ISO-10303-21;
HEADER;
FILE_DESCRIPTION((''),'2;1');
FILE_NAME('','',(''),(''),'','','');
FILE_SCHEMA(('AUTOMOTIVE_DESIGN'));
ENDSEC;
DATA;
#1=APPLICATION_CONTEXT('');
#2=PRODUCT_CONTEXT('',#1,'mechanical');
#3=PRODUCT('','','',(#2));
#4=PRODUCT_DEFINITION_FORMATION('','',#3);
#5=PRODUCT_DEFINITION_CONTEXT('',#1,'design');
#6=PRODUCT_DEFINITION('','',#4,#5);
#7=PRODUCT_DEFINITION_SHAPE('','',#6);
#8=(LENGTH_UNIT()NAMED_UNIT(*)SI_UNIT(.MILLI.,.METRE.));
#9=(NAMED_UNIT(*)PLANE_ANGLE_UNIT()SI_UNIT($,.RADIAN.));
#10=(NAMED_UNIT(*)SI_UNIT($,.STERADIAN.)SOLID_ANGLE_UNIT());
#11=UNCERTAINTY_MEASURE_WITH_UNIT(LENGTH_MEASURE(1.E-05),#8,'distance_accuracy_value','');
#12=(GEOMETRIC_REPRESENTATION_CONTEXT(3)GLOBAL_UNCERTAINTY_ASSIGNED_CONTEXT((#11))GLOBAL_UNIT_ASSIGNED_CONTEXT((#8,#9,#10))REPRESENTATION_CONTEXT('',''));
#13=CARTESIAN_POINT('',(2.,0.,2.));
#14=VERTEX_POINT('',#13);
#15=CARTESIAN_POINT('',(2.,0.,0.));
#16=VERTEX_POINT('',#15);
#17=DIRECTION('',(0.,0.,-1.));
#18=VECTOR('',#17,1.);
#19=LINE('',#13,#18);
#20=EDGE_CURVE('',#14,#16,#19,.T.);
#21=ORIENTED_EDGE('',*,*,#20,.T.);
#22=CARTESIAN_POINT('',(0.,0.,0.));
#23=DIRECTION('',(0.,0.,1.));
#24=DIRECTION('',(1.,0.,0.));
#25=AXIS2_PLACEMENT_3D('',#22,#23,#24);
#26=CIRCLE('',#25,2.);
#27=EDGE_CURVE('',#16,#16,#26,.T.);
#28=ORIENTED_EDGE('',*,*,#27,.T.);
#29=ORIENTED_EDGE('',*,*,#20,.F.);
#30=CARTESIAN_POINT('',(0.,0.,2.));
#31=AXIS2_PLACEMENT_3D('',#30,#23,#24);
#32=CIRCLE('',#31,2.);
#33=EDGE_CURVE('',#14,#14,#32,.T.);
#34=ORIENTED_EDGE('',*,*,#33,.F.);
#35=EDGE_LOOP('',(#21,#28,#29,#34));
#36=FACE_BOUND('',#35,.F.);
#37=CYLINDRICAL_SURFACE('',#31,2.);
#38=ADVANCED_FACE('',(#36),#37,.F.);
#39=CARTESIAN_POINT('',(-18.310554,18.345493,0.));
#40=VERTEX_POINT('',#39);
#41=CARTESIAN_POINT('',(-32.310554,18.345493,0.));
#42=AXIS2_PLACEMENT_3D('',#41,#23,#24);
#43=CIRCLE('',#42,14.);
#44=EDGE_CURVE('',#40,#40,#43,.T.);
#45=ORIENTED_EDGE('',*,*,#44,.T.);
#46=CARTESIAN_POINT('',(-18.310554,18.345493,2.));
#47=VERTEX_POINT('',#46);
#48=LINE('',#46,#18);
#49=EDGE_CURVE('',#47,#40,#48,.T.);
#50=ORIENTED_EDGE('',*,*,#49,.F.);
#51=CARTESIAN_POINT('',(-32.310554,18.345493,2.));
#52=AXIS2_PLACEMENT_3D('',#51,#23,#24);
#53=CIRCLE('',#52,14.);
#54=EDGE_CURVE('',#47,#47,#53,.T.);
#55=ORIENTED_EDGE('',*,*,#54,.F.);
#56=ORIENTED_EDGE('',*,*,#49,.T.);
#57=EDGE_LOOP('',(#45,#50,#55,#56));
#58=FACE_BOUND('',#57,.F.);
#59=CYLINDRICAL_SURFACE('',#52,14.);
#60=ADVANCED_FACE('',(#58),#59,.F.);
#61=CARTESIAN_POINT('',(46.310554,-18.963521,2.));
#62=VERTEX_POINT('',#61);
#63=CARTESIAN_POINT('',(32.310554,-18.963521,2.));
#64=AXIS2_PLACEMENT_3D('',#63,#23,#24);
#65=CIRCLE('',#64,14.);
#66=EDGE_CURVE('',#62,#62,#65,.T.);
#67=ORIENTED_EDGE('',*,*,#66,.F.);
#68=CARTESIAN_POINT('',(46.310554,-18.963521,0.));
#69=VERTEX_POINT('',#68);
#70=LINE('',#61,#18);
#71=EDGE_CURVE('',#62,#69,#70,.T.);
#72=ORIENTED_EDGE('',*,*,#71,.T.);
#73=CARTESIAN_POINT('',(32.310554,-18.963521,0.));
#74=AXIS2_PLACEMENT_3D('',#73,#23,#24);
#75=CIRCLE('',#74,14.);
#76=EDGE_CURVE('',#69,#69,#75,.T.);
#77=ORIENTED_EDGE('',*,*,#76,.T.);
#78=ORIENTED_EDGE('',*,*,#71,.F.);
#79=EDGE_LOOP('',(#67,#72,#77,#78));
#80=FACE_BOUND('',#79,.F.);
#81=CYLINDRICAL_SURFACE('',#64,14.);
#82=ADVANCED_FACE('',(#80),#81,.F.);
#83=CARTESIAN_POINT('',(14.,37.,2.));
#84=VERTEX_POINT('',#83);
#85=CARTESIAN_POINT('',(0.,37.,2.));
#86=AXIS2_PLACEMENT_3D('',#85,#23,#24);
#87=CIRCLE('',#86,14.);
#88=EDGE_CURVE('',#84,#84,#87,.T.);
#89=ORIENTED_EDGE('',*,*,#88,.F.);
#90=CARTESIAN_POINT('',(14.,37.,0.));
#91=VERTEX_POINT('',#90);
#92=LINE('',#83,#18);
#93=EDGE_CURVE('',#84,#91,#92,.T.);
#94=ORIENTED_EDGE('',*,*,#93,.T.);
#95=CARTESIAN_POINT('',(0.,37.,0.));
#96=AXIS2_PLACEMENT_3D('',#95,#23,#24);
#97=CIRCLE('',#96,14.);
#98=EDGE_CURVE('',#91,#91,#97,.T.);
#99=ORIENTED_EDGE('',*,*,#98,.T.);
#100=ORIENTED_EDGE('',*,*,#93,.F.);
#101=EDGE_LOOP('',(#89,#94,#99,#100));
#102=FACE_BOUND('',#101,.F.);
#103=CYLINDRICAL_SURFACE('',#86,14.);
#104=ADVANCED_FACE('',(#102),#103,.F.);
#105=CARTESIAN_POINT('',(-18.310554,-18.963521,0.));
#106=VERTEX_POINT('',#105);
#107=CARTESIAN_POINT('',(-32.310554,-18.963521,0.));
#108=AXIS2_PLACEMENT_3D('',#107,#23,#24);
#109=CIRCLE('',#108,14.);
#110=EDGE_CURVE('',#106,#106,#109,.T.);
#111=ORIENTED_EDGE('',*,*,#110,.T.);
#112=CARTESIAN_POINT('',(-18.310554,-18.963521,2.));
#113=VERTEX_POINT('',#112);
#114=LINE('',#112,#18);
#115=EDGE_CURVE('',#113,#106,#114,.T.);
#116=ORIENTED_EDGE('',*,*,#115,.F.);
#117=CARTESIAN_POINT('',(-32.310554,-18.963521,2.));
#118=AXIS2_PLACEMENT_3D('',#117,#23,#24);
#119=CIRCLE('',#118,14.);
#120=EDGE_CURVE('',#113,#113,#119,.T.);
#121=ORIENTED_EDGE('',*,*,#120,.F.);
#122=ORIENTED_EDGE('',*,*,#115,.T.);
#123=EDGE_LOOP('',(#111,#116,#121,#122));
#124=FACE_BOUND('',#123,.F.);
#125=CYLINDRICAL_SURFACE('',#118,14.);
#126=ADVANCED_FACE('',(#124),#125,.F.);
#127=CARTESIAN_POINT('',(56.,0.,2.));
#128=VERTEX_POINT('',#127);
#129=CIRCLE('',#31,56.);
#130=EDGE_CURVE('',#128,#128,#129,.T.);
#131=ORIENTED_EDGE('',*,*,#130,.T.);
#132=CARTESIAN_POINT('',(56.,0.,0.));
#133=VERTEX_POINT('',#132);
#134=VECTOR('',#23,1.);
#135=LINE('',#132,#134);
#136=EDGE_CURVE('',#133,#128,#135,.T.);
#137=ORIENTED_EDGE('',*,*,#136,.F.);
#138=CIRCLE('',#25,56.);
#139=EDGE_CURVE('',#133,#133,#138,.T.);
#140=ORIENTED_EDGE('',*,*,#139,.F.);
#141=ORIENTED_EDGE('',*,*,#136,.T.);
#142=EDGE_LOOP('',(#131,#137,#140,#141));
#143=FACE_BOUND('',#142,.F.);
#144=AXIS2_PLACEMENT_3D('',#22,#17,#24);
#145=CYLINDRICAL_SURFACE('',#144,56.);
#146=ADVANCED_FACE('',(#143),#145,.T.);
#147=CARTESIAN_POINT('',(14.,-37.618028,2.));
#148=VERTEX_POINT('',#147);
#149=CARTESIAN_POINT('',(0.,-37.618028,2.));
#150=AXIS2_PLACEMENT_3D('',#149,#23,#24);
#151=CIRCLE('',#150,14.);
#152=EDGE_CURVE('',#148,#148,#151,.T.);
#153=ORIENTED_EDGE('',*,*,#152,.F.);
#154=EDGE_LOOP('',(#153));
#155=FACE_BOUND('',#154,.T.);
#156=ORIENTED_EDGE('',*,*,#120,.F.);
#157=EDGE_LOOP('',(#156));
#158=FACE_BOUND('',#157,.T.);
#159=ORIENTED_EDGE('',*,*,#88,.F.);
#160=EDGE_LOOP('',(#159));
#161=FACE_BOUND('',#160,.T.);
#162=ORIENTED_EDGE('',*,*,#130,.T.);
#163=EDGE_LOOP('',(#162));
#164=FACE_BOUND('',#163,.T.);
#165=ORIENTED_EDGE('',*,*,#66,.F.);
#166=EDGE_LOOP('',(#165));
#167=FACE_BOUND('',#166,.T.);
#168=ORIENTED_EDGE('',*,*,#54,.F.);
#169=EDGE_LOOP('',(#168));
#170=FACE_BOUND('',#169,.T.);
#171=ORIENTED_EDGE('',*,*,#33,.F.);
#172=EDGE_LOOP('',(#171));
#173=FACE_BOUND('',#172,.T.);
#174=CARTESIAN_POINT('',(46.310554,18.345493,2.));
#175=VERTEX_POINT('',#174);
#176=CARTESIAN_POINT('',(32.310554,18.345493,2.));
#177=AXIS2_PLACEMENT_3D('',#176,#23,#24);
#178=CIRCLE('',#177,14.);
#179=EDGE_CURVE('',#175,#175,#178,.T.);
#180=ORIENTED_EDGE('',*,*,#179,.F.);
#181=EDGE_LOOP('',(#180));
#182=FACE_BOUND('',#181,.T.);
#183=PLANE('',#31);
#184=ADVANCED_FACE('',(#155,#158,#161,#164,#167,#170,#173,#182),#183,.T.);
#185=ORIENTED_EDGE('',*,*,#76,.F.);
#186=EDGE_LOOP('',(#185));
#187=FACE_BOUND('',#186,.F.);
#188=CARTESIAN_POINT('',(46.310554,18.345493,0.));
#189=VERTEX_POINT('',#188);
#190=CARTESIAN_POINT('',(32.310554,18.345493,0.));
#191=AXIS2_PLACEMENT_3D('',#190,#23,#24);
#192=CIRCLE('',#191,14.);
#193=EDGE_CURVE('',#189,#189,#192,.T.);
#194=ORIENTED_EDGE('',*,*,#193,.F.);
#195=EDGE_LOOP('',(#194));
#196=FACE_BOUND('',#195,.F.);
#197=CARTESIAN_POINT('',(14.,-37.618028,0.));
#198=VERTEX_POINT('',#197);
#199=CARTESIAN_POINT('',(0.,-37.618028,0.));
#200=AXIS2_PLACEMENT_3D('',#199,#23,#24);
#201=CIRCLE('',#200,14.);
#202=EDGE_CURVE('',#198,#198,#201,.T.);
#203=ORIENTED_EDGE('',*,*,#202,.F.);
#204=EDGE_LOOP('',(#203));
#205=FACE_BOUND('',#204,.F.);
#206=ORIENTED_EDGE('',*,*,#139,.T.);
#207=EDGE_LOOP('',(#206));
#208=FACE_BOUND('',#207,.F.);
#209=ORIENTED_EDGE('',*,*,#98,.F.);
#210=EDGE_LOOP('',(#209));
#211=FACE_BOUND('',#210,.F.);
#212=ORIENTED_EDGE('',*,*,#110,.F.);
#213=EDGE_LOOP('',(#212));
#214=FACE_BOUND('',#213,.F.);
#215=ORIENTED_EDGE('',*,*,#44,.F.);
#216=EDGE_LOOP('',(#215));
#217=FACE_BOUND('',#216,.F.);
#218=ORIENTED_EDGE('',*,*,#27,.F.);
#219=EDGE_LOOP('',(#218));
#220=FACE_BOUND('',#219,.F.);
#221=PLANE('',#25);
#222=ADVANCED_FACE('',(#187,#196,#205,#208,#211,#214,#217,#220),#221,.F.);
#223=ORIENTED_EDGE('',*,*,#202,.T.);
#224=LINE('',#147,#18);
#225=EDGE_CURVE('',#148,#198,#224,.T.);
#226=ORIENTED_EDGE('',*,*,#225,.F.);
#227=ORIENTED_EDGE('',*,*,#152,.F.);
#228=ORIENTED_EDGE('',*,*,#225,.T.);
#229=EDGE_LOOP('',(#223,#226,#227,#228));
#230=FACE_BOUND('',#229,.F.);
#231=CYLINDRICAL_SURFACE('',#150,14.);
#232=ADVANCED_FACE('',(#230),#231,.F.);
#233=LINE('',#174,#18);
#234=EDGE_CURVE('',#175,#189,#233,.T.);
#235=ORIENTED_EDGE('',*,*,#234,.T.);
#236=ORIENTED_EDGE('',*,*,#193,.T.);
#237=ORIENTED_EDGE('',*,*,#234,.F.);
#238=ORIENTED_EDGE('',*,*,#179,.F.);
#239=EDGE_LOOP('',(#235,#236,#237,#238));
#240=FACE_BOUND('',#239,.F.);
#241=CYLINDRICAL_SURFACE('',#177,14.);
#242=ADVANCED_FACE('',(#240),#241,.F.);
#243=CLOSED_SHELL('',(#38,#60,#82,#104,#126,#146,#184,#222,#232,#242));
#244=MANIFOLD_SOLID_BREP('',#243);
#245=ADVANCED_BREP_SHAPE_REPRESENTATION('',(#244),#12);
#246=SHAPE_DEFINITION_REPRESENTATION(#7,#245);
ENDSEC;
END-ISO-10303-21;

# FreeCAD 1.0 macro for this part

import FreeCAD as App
import Part
import Sketcher
Q = App.Units.Quantity

doc = App.newDocument("Part")
body = doc.addObject("PartDesign::Body", "Body")

# Sketch on XY plane
sketch1 = body.newObject("Sketcher::SketchObject", "Sketch")
sketch1.AttachmentSupport = (doc.getObject("XY_Plane"), [""])
sketch1.MapMode = "FlatFace"
sketch1.addGeometry(Part.Circle(App.Vector(0, 0, 0), App.Vector(0, 0, 1), 56), False)
sketch1.addConstraint(Sketcher.Constraint("Coincident", 0, 3, -1, 1))
sketch1.addConstraint(Sketcher.Constraint("Diameter", 0, Q("112 mm")))
pad1 = body.newObject("PartDesign::Pad", "Pad")
pad1.Profile = sketch1
pad1.Length = 2

# Sketch on XY plane
sketch2 = body.newObject("Sketcher::SketchObject", "Sketch001")
sketch2.AttachmentSupport = (doc.getObject("XY_Plane"), [""])
sketch2.MapMode = "FlatFace"
sketch2.AttachmentOffset = App.Placement(App.Vector(0, 0, 2), App.Rotation())
sketch2.addGeometry(Part.Circle(App.Vector(0, 0, 0), App.Vector(0, 0, 1), 2), False)
sketch2.addConstraint(Sketcher.Constraint("Coincident", 0, 3, -1, 1))
sketch2.addConstraint(Sketcher.Constraint("Diameter", 0, Q("4 mm")))
pocket1 = body.newObject("PartDesign::Pocket", "Pocket")
pocket1.Profile = sketch2
pocket1.Length = 2

# Sketch on XY plane
sketch3 = body.newObject("Sketcher::SketchObject", "Sketch002")
sketch3.AttachmentSupport = (doc.getObject("XY_Plane"), [""])
sketch3.MapMode = "FlatFace"
sketch3.AttachmentOffset = App.Placement(App.Vector(0, 0, 2), App.Rotation())
sketch3.addGeometry(Part.Circle(App.Vector(0, 37, 0), App.Vector(0, 0, 1), 14), False)
sketch3.addGeometry(Part.Circle(App.Vector(-32.310554, 18.345493, 0), App.Vector(0, 0, 1), 14), False)
sketch3.addGeometry(Part.Circle(App.Vector(-32.310554, -18.963521, 0), App.Vector(0, 0, 1), 14), False)
sketch3.addGeometry(Part.Circle(App.Vector(0, -37.618028, 0), App.Vector(0, 0, 1), 14), False)
sketch3.addGeometry(Part.Circle(App.Vector(32.310554, -18.963521, 0), App.Vector(0, 0, 1), 14), False)
sketch3.addGeometry(Part.Circle(App.Vector(32.310554, 18.345493, 0), App.Vector(0, 0, 1), 14), False)
sketch3.addConstraint(Sketcher.Constraint("Equal", 0, 1))
sketch3.addConstraint(Sketcher.Constraint("Equal", 1, 2))
sketch3.addConstraint(Sketcher.Constraint("Equal", 2, 3))
sketch3.addConstraint(Sketcher.Constraint("Equal", 3, 4))
sketch3.addConstraint(Sketcher.Constraint("Equal", 4, 5))
sketch3.addConstraint(Sketcher.Constraint("Symmetric", 2, 3, 4, 3, -2))
sketch3.addConstraint(Sketcher.Constraint("Symmetric", 1, 3, 5, 3, -2))
sketch3.addConstraint(Sketcher.Constraint("PointOnObject", 0, 3, -2))
sketch3.addConstraint(Sketcher.Constraint("PointOnObject", 3, 3, -2))
sketch3.addConstraint(Sketcher.Constraint("Vertical", 1, 3, 2, 3))
sketch3.addConstraint(Sketcher.Constraint("Diameter", 0, Q("28 mm")))
sketch3.addConstraint(Sketcher.Constraint("DistanceY", -1, 1, 0, 3, Q("37 mm")))
sketch3.addConstraint(Sketcher.Constraint("DistanceY", 2, 3, -1, 1, Q("18.963521 mm")))
sketch3.addConstraint(Sketcher.Constraint("DistanceY", 3, 3, -1, 1, Q("37.618028 mm")))
sketch3.addConstraint(Sketcher.Constraint("DistanceY", 3, 3, 1, 3, Q("55.963521 mm")))
sketch3.addConstraint(Sketcher.Constraint("DistanceX", 2, 3, 4, 3, Q("64.621108 mm")))
pocket2 = body.newObject("PartDesign::Pocket", "Pocket001")
pocket2.Profile = sketch3
pocket2.Length = 2

doc.recompute()
